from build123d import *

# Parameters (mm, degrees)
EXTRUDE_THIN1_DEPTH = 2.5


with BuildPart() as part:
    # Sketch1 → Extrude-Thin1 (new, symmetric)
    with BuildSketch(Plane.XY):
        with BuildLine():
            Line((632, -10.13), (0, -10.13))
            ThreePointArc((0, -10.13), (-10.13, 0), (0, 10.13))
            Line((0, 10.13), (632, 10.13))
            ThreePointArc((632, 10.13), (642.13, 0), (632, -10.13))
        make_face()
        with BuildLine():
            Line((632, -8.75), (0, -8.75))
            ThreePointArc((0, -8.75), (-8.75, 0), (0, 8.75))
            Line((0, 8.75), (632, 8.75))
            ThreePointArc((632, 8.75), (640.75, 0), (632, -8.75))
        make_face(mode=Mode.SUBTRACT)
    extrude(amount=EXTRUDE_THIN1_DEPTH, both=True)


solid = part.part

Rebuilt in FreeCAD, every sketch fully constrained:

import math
import FreeCAD as App
import Part
import Sketcher
from FreeCAD import Vector
Q = App.Units.Quantity

doc = App.newDocument("Part")
params = doc.addObject("Spreadsheet::Sheet", "Params")
for row, (alias, value) in enumerate([
    ("sketch1_width", "632 mm"),
    ("sketch1_radius", "10.13 mm"),
    ("sketch1_radius2", "8.75 mm"),
    ("pad1_length", "5 mm"),
], start=1):
    params.set(f"A{row}", alias)
    params.set(f"B{row}", "=" + value)
    params.setAlias(f"B{row}", alias)

body = doc.addObject("PartDesign::Body", "Body")

# Sketch on XY plane
sketch1 = body.newObject("Sketcher::SketchObject", "Sketch")
sketch1.AttachmentSupport = (doc.getObject("XY_Plane"), [""])
sketch1.MapMode = "FlatFace"
sketch1.addGeometry([
    Part.LineSegment(Vector(0, -10, 0), Vector(632, -10, 0)),  # 0
    Part.ArcOfCircle(Part.Circle(Vector(632, 0, 0), Vector(0, 0, 1), 10), math.radians(-90), math.radians(90)),  # 1
    Part.LineSegment(Vector(632, 10, 0), Vector(0, 10, 0)),  # 2
    Part.ArcOfCircle(Part.Circle(Vector(0, 0, 0), Vector(0, 0, 1), 10), math.radians(90), math.radians(270)),  # 3
    Part.LineSegment(Vector(632, -9, 0), Vector(0, -9, 0)),  # 4
    Part.ArcOfCircle(Part.Circle(Vector(0, 0, 0), Vector(0, 0, 1), 9), math.radians(90), math.radians(270)),  # 5
    Part.LineSegment(Vector(0, 9, 0), Vector(632, 9, 0)),  # 6
    Part.ArcOfCircle(Part.Circle(Vector(632, 0, 0), Vector(0, 0, 1), 9), math.radians(-90), math.radians(90)),  # 7
], False)
sketch1.addConstraint([
    Sketcher.Constraint("Tangent", 0, 2, 1, 1),
    Sketcher.Constraint("Tangent", 1, 2, 2, 1),
    Sketcher.Constraint("Tangent", 2, 2, 3, 1),
    Sketcher.Constraint("Tangent", 3, 2, 0, 1),
    Sketcher.Constraint("Tangent", 4, 2, 5, 2),
    Sketcher.Constraint("Tangent", 5, 1, 6, 1),
    Sketcher.Constraint("Tangent", 6, 2, 7, 2),
    Sketcher.Constraint("Tangent", 7, 1, 4, 1),
    Sketcher.Constraint("Horizontal", 0),
    Sketcher.Constraint("Horizontal", 2),
    Sketcher.Constraint("Horizontal", 4),
    Sketcher.Constraint("Horizontal", 6),
    Sketcher.Constraint("Coincident", 3, 3, -1, 1),
    Sketcher.Constraint("Coincident", 5, 3, -1, 1),
    Sketcher.Constraint("Vertical", 7, 3, 0, 2),
    Sketcher.Constraint("DistanceX", 0, 1, 0, 2, Q("632 mm")),
    Sketcher.Constraint("Radius", 1, Q("10.13 mm")),
    Sketcher.Constraint("Radius", 5, Q("8.75 mm")),
])
sketch1.setExpression("Constraints[15]", "Params.sketch1_width")
sketch1.setExpression("Constraints[16]", "Params.sketch1_radius")
sketch1.setExpression("Constraints[17]", "Params.sketch1_radius2")
pad1 = body.newObject("PartDesign::Pad", "Pad")
pad1.Profile = sketch1
pad1.setExpression("Length", "Params.pad1_length")
pad1.Midplane = True

doc.recompute()
